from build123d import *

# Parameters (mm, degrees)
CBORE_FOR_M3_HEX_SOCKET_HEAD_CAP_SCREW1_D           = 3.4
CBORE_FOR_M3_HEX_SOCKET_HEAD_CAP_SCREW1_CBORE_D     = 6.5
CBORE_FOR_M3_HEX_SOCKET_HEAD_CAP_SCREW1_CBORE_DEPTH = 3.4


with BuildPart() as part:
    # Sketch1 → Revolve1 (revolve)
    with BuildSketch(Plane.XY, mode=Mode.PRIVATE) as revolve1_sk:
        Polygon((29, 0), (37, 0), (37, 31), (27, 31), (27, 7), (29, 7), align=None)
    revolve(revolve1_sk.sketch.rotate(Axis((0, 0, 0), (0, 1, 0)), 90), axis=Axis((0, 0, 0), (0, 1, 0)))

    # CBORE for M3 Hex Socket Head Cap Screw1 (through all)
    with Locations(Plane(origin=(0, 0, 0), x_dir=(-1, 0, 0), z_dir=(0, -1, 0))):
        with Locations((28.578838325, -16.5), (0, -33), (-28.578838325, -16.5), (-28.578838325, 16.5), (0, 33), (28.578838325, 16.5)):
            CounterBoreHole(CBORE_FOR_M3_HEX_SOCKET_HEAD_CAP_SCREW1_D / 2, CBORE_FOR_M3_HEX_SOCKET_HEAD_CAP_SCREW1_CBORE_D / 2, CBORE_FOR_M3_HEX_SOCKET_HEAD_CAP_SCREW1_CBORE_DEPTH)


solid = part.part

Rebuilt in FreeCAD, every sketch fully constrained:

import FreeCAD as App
import Part
import Sketcher
from FreeCAD import Vector

doc = App.newDocument("Part")
params = doc.addObject("Spreadsheet::Sheet", "Params")
for row, (alias, value) in enumerate([
    ("sketch1_width", "8 mm"),
    ("sketch1_width2", "10 mm"),
    ("sketch1_height", "31 mm"),
    ("sketch1_height2", "24 mm"),
    ("revolution_angle", "360 deg"),
    ("sketch2_diameter", "3.4 mm"),
    ("hole_diameter", "3.4 mm"),
    ("hole_cbore_diameter", "6.5 mm"),
    ("hole_cbore_depth", "3.4 mm"),
], start=1):
    params.set(f"A{row}", alias)
    params.set(f"B{row}", "=" + value)
    params.setAlias(f"B{row}", alias)

body = doc.addObject("PartDesign::Body", "Body")

# Sketch on XY plane
sketch1 = body.newObject("Sketcher::SketchObject", "Sketch")
sketch1.AttachmentSupport = (doc.getObject("XY_Plane"), [""])
sketch1.MapMode = "FlatFace"
sketch1.addGeometry(Part.LineSegment(Vector(29, 0, 0), Vector(37, 0, 0)), False)
sketch1.addGeometry(Part.LineSegment(Vector(37, 0, 0), Vector(37, 31, 0)), False)
sketch1.addGeometry(Part.LineSegment(Vector(37, 31, 0), Vector(27, 31, 0)), False)
sketch1.addGeometry(Part.LineSegment(Vector(27, 31, 0), Vector(27, 7, 0)), False)
sketch1.addGeometry(Part.LineSegment(Vector(27, 7, 0), Vector(29, 7, 0)), False)
sketch1.addGeometry(Part.LineSegment(Vector(29, 7, 0), Vector(29, 0, 0)), False)
sketch1.addConstraint(Sketcher.Constraint("Coincident", 0, 2, 1, 1))
sketch1.addConstraint(Sketcher.Constraint("Coincident", 1, 2, 2, 1))
sketch1.addConstraint(Sketcher.Constraint("Coincident", 2, 2, 3, 1))
sketch1.addConstraint(Sketcher.Constraint("Coincident", 3, 2, 4, 1))
sketch1.addConstraint(Sketcher.Constraint("Coincident", 4, 2, 5, 1))
sketch1.addConstraint(Sketcher.Constraint("Coincident", 5, 2, 0, 1))
sketch1.addConstraint(Sketcher.Constraint("Horizontal", 0))
sketch1.addConstraint(Sketcher.Constraint("Vertical", 1))
sketch1.addConstraint(Sketcher.Constraint("Horizontal", 2))
sketch1.addConstraint(Sketcher.Constraint("Vertical", 3))
sketch1.addConstraint(Sketcher.Constraint("Horizontal", 4))
sketch1.addConstraint(Sketcher.Constraint("Vertical", 5))
sketch1.addConstraint(Sketcher.Constraint("PointOnObject", 0, 2, -1))
sketch1.addConstraint(Sketcher.Constraint("DistanceX", 0, 1, 0, 2, 8.0))
sketch1.addConstraint(Sketcher.Constraint("DistanceX", 2, 2, 2, 1, 10.0))
sketch1.addConstraint(Sketcher.Constraint("DistanceY", 1, 1, 1, 2, 31.0))
sketch1.addConstraint(Sketcher.Constraint("DistanceY", 3, 2, 3, 1, 24.0))
sketch1.addConstraint(Sketcher.Constraint("DistanceX", -1, 1, 0, 2, 37.0))
sketch1.setExpression("Constraints[13]", "Params.sketch1_width")
sketch1.setExpression("Constraints[14]", "Params.sketch1_width2")
sketch1.setExpression("Constraints[15]", "Params.sketch1_height")
sketch1.setExpression("Constraints[16]", "Params.sketch1_height2")
revolution = body.newObject("PartDesign::Revolution", "Revolution")
revolution.Profile = sketch1
revolution.ReferenceAxis = (sketch1, ["V_Axis"])
revolution.setExpression("Angle", "Params.revolution_angle")

# Sketch on XZ plane
sketch2 = body.newObject("Sketcher::SketchObject", "Sketch001")
sketch2.AttachmentSupport = (doc.getObject("XZ_Plane"), [""])
sketch2.MapMode = "FlatFace"
sketch2.addGeometry(Part.Circle(Vector(-28.578838, 16.5, 0), Vector(0, 0, 1), 1.7), False)
sketch2.addGeometry(Part.Circle(Vector(0, 33, 0), Vector(0, 0, 1), 1.7), False)
sketch2.addGeometry(Part.Circle(Vector(28.578838, 16.5, 0), Vector(0, 0, 1), 1.7), False)
sketch2.addGeometry(Part.Circle(Vector(28.578838, -16.5, 0), Vector(0, 0, 1), 1.7), False)
sketch2.addGeometry(Part.Circle(Vector(0, -33, 0), Vector(0, 0, 1), 1.7), False)
sketch2.addGeometry(Part.Circle(Vector(-28.578838, -16.5, 0), Vector(0, 0, 1), 1.7), False)
sketch2.addConstraint(Sketcher.Constraint("Equal", 0, 1))
sketch2.addConstraint(Sketcher.Constraint("Equal", 1, 2))
sketch2.addConstraint(Sketcher.Constraint("Equal", 2, 3))
sketch2.addConstraint(Sketcher.Constraint("Equal", 3, 4))
sketch2.addConstraint(Sketcher.Constraint("Equal", 4, 5))
sketch2.addConstraint(Sketcher.Constraint("Symmetric", 0, 3, 3, 3, -1, 1))
sketch2.addConstraint(Sketcher.Constraint("Symmetric", 1, 3, 4, 3, -1, 1))
sketch2.addConstraint(Sketcher.Constraint("Symmetric", 2, 3, 5, 3, -1, 1))
sketch2.addConstraint(Sketcher.Constraint("Symmetric", 0, 3, 2, 3, -2))
sketch2.addConstraint(Sketcher.Constraint("PointOnObject", 1, 3, -2))
sketch2.addConstraint(Sketcher.Constraint("Diameter", 0, 3.4))
sketch2.addConstraint(Sketcher.Constraint("DistanceY", -1, 1, 1, 3, 33.0))
sketch2.addConstraint(Sketcher.Constraint("DistanceY", 3, 3, 2, 3, 33.0))
sketch2.addConstraint(Sketcher.Constraint("DistanceX", 0, 3, -1, 1, 28.578838))
sketch2.setExpression("Constraints[10]", "Params.sketch2_diameter")
doc.recompute()
hole = body.newObject("PartDesign::Hole", "Hole")
hole.Profile = sketch2
hole.ThreadType = "None"
hole.setExpression("Diameter", "Params.hole_diameter")
hole.DepthType = "ThroughAll"
hole.HoleCutType = "Counterbore"
hole.setExpression("HoleCutDiameter", "Params.hole_cbore_diameter")
hole.setExpression("HoleCutDepth", "Params.hole_cbore_depth")

doc.recompute()
